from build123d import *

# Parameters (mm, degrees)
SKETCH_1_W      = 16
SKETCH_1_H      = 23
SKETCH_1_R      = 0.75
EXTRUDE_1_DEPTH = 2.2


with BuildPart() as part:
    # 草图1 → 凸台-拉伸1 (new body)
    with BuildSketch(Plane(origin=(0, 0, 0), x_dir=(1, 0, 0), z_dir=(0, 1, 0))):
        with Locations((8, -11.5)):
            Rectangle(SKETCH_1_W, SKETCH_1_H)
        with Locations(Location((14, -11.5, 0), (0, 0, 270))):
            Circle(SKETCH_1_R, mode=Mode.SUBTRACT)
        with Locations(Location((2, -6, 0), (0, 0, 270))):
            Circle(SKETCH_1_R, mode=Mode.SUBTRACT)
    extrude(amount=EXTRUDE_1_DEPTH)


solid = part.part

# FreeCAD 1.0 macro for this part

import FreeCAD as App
import Part
import Sketcher
Q = App.Units.Quantity


def add_polygon(sketch, points):
    """Adds a closed chain of lines whose ends are joined by coincident constraints."""
    first, n = sketch.GeometryCount, len(points)
    for a, b in zip(points, points[1:] + points[:1]):
        sketch.addGeometry(Part.LineSegment(App.Vector(*a, 0), App.Vector(*b, 0)), False)
    for i in range(n):
        sketch.addConstraint(Sketcher.Constraint("Coincident", first + i, 2, first + (i + 1) % n, 1))

doc = App.newDocument("Part")
body = doc.addObject("PartDesign::Body", "Body")

# Sketch on XZ plane
sketch1 = body.newObject("Sketcher::SketchObject", "Sketch")
sketch1.AttachmentSupport = (doc.getObject("XZ_Plane"), [""])
sketch1.MapMode = "FlatFace"
add_polygon(sketch1, [(0, 0), (0, 23), (16, 23), (16, 0)])  # lines 0-3
sketch1.addGeometry(Part.Circle(App.Vector(14, 11.5, 0), App.Vector(0, 0, 1), 0.8), False)  # 4
sketch1.addGeometry(Part.Circle(App.Vector(2, 6, 0), App.Vector(0, 0, 1), 0.8), False)  # 5
sketch1.addConstraint(Sketcher.Constraint("Vertical", 0))
sketch1.addConstraint(Sketcher.Constraint("Horizontal", 1))
sketch1.addConstraint(Sketcher.Constraint("Vertical", 2))
sketch1.addConstraint(Sketcher.Constraint("Horizontal", 3))
sketch1.addConstraint(Sketcher.Constraint("Coincident", 3, 2, -1, 1))
sketch1.addConstraint(Sketcher.Constraint("Equal", 4, 5))
sketch1.addConstraint(Sketcher.Constraint("Diameter", 4, Q("1.5 mm")))
sketch1.addConstraint(Sketcher.Constraint("DistanceX", 1, 1, 1, 2, Q("16 mm")))
sketch1.addConstraint(Sketcher.Constraint("DistanceY", 0, 1, 0, 2, Q("23 mm")))
sketch1.addConstraint(Sketcher.Constraint("DistanceX", -1, 1, 4, 3, Q("14 mm")))
sketch1.addConstraint(Sketcher.Constraint("DistanceX", -1, 1, 5, 3, Q("2 mm")))
sketch1.addConstraint(Sketcher.Constraint("DistanceY", -1, 1, 5, 3, Q("6 mm")))
sketch1.addConstraint(Sketcher.Constraint("DistanceY", -1, 1, 4, 3, Q("11.5 mm")))
pad1 = body.newObject("PartDesign::Pad", "Pad")
pad1.Profile = sketch1
pad1.Length = 2.2
pad1.Reversed = True

doc.recompute()
